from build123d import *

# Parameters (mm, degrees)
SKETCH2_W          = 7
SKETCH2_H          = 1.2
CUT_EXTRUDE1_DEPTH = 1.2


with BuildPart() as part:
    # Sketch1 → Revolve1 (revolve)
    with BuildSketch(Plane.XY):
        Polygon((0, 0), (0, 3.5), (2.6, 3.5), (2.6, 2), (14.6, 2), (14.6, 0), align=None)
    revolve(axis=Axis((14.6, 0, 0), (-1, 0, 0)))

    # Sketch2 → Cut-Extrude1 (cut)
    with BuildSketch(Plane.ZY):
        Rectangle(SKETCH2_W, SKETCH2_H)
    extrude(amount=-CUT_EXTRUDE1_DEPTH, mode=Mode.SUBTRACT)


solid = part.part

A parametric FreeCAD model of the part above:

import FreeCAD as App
import Part
import Sketcher
Q = App.Units.Quantity

doc = App.newDocument("Part")
body = doc.addObject("PartDesign::Body", "Body")

sketch1 = body.newObject("Sketcher::SketchObject", "Sketch")
sketch1.AttachmentSupport = (doc.getObject("XY_Plane"), [""])
sketch1.MapMode = "FlatFace"
sketch1.addGeometry(Part.LineSegment(App.Vector(0, 3.5, 0), App.Vector(0, 0, 0)), False)
sketch1.addGeometry(Part.LineSegment(App.Vector(0, 0, 0), App.Vector(14.6, 0, 0)), False)
sketch1.addGeometry(Part.LineSegment(App.Vector(14.6, 0, 0), App.Vector(14.6, 2, 0)), False)
sketch1.addGeometry(Part.LineSegment(App.Vector(14.6, 2, 0), App.Vector(2.6, 2, 0)), False)
sketch1.addGeometry(Part.LineSegment(App.Vector(2.6, 2, 0), App.Vector(2.6, 3.5, 0)), False)
sketch1.addGeometry(Part.LineSegment(App.Vector(2.6, 3.5, 0), App.Vector(0, 3.5, 0)), False)
sketch1.addConstraint(Sketcher.Constraint("Coincident", 0, 2, 1, 1))
sketch1.addConstraint(Sketcher.Constraint("Coincident", 1, 2, 2, 1))
sketch1.addConstraint(Sketcher.Constraint("Coincident", 2, 2, 3, 1))
sketch1.addConstraint(Sketcher.Constraint("Coincident", 3, 2, 4, 1))
sketch1.addConstraint(Sketcher.Constraint("Coincident", 4, 2, 5, 1))
sketch1.addConstraint(Sketcher.Constraint("Coincident", 5, 2, 0, 1))
sketch1.addConstraint(Sketcher.Constraint("Vertical", 0))
sketch1.addConstraint(Sketcher.Constraint("Horizontal", 1))
sketch1.addConstraint(Sketcher.Constraint("Vertical", 2))
sketch1.addConstraint(Sketcher.Constraint("Horizontal", 3))
sketch1.addConstraint(Sketcher.Constraint("Vertical", 4))
sketch1.addConstraint(Sketcher.Constraint("Horizontal", 5))
sketch1.addConstraint(Sketcher.Constraint("Coincident", 0, 2, -1, 1))
sketch1.addConstraint(Sketcher.Constraint("DistanceX", 3, 2, 3, 1, Q("12 mm")))
sketch1.addConstraint(Sketcher.Constraint("DistanceY", 2, 1, 2, 2, Q("2 mm")))
sketch1.addConstraint(Sketcher.Constraint("DistanceX", 1, 1, 1, 2, Q("14.6 mm")))
sketch1.addConstraint(Sketcher.Constraint("DistanceY", 0, 2, 0, 1, Q("3.5 mm")))
revolution = body.newObject("PartDesign::Revolution", "Revolution")
revolution.Profile = sketch1
revolution.ReferenceAxis = (sketch1, ["H_Axis"])
revolution.Angle = 360

sketch2 = body.newObject("Sketcher::SketchObject", "Sketch001")
sketch2.AttachmentSupport = (doc.getObject("YZ_Plane"), [""])
sketch2.MapMode = "FlatFace"
sketch2.addGeometry(Part.LineSegment(App.Vector(0.6, -3.5, 0), App.Vector(-0.6, -3.5, 0)), False)
sketch2.addGeometry(Part.LineSegment(App.Vector(-0.6, -3.5, 0), App.Vector(-0.6, 3.5, 0)), False)
sketch2.addGeometry(Part.LineSegment(App.Vector(-0.6, 3.5, 0), App.Vector(0.6, 3.5, 0)), False)
sketch2.addGeometry(Part.LineSegment(App.Vector(0.6, 3.5, 0), App.Vector(0.6, -3.5, 0)), False)
sketch2.addConstraint(Sketcher.Constraint("Coincident", 0, 2, 1, 1))
sketch2.addConstraint(Sketcher.Constraint("Coincident", 1, 2, 2, 1))
sketch2.addConstraint(Sketcher.Constraint("Coincident", 2, 2, 3, 1))
sketch2.addConstraint(Sketcher.Constraint("Coincident", 3, 2, 0, 1))
sketch2.addConstraint(Sketcher.Constraint("Horizontal", 0))
sketch2.addConstraint(Sketcher.Constraint("Vertical", 1))
sketch2.addConstraint(Sketcher.Constraint("Horizontal", 2))
sketch2.addConstraint(Sketcher.Constraint("Vertical", 3))
sketch2.addConstraint(Sketcher.Constraint("Symmetric", 0, 2, 2, 2, -1, 1))
sketch2.addConstraint(Sketcher.Constraint("DistanceY", 1, 1, 1, 2, Q("7 mm")))
sketch2.addConstraint(Sketcher.Constraint("DistanceX", 0, 2, 0, 1, Q("1.2 mm")))
pocket1 = body.newObject("PartDesign::Pocket", "Pocket")
pocket1.Profile = sketch2
pocket1.Length = 1.2
pocket1.Reversed = True

doc.recompute()
